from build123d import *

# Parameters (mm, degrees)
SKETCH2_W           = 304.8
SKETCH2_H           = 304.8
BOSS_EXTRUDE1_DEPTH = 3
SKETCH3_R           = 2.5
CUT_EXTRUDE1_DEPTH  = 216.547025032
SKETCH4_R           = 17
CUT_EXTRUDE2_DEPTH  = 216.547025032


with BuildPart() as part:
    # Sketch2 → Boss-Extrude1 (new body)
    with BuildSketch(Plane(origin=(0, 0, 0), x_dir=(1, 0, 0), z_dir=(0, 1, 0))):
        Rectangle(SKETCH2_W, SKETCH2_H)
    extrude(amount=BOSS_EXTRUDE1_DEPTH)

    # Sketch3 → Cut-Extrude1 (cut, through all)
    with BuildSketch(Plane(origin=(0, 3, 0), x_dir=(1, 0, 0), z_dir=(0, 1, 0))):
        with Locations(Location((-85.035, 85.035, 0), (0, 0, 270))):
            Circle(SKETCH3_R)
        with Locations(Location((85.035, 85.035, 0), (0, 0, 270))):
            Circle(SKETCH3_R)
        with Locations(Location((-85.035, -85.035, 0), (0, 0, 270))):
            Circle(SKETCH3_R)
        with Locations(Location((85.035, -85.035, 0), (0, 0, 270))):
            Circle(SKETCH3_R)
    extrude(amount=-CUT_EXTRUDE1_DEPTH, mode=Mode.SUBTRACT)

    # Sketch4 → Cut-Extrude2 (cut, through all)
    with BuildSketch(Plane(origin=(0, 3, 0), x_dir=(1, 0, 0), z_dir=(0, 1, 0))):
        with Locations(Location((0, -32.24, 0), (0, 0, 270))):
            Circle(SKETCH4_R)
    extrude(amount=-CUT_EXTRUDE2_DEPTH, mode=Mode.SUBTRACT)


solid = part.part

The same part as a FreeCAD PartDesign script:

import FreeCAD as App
import Part
import Sketcher
from FreeCAD import Vector
Q = App.Units.Quantity

doc = App.newDocument("Part")
body = doc.addObject("PartDesign::Body", "Body")

sketch1 = body.newObject("Sketcher::SketchObject", "Sketch")
sketch1.AttachmentSupport = (doc.getObject("XZ_Plane"), [""])
sketch1.MapMode = "FlatFace"
sketch1.addGeometry(Part.LineSegment(Vector(-152, -152, 0), Vector(-152, 152, 0)), False)
sketch1.addGeometry(Part.LineSegment(Vector(-152, 152, 0), Vector(152, 152, 0)), False)
sketch1.addGeometry(Part.LineSegment(Vector(152, 152, 0), Vector(152, -152, 0)), False)
sketch1.addGeometry(Part.LineSegment(Vector(152, -152, 0), Vector(-152, -152, 0)), False)
sketch1.addConstraint(Sketcher.Constraint("Coincident", 0, 2, 1, 1))
sketch1.addConstraint(Sketcher.Constraint("Coincident", 1, 2, 2, 1))
sketch1.addConstraint(Sketcher.Constraint("Coincident", 2, 2, 3, 1))
sketch1.addConstraint(Sketcher.Constraint("Coincident", 3, 2, 0, 1))
sketch1.addConstraint(Sketcher.Constraint("Vertical", 0))
sketch1.addConstraint(Sketcher.Constraint("Horizontal", 1))
sketch1.addConstraint(Sketcher.Constraint("Vertical", 2))
sketch1.addConstraint(Sketcher.Constraint("Horizontal", 3))
sketch1.addConstraint(Sketcher.Constraint("Symmetric", 0, 2, 2, 2, -1, 1))
sketch1.addConstraint(Sketcher.Constraint("Equal", 3, 0))
sketch1.addConstraint(Sketcher.Constraint("DistanceX", 1, 1, 1, 2, Q("304.8 mm")))
pad1 = body.newObject("PartDesign::Pad", "Pad")
pad1.Profile = sketch1
pad1.Length = 3
pad1.Reversed = True

sketch2 = body.newObject("Sketcher::SketchObject", "Sketch001")
sketch2.AttachmentSupport = (doc.getObject("XZ_Plane"), [""])
sketch2.MapMode = "FlatFace"
sketch2.AttachmentOffset = App.Placement(Vector(0, 0, -3), App.Rotation())
sketch2.addGeometry(Part.Circle(Vector(-85, -85, 0), Vector(0, 0, 1), 2.5), False)
sketch2.addGeometry(Part.Circle(Vector(85, -85, 0), Vector(0, 0, 1), 2.5), False)
sketch2.addGeometry(Part.Circle(Vector(-85, 85, 0), Vector(0, 0, 1), 2.5), False)
sketch2.addGeometry(Part.Circle(Vector(85, 85, 0), Vector(0, 0, 1), 2.5), False)
sketch2.addConstraint(Sketcher.Constraint("Equal", 0, 1))
sketch2.addConstraint(Sketcher.Constraint("Equal", 1, 2))
sketch2.addConstraint(Sketcher.Constraint("Equal", 2, 3))
sketch2.addConstraint(Sketcher.Constraint("Symmetric", 1, 3, 2, 3, -1, 1))
sketch2.addConstraint(Sketcher.Constraint("Symmetric", 0, 3, 3, 3, -1, 1))
sketch2.addConstraint(Sketcher.Constraint("Symmetric", 0, 3, 1, 3, -2))
sketch2.addConstraint(Sketcher.Constraint("Diameter", 0, Q("5 mm")))
sketch2.addConstraint(Sketcher.Constraint("DistanceX", 0, 3, 1, 3, Q("170.07 mm")))
sketch2.addConstraint(Sketcher.Constraint("DistanceY", 0, 3, 2, 3, Q("170.07 mm")))
pocket1 = body.newObject("PartDesign::Pocket", "Pocket")
pocket1.Profile = sketch2
pocket1.Type = "ThroughAll"
pocket1.Reversed = True

sketch3 = body.newObject("Sketcher::SketchObject", "Sketch002")
sketch3.AttachmentSupport = (doc.getObject("XZ_Plane"), [""])
sketch3.MapMode = "FlatFace"
sketch3.AttachmentOffset = App.Placement(Vector(0, 0, -3), App.Rotation())
sketch3.addGeometry(Part.Circle(Vector(0, 32, 0), Vector(0, 0, 1), 17), False)
sketch3.addConstraint(Sketcher.Constraint("PointOnObject", 0, 3, -2))
sketch3.addConstraint(Sketcher.Constraint("Diameter", 0, Q("34 mm")))
sketch3.addConstraint(Sketcher.Constraint("DistanceY", -1, 1, 0, 3, Q("32.24 mm")))
pocket2 = body.newObject("PartDesign::Pocket", "Pocket001")
pocket2.Profile = sketch3
pocket2.Type = "ThroughAll"
pocket2.Reversed = True

doc.recompute()
